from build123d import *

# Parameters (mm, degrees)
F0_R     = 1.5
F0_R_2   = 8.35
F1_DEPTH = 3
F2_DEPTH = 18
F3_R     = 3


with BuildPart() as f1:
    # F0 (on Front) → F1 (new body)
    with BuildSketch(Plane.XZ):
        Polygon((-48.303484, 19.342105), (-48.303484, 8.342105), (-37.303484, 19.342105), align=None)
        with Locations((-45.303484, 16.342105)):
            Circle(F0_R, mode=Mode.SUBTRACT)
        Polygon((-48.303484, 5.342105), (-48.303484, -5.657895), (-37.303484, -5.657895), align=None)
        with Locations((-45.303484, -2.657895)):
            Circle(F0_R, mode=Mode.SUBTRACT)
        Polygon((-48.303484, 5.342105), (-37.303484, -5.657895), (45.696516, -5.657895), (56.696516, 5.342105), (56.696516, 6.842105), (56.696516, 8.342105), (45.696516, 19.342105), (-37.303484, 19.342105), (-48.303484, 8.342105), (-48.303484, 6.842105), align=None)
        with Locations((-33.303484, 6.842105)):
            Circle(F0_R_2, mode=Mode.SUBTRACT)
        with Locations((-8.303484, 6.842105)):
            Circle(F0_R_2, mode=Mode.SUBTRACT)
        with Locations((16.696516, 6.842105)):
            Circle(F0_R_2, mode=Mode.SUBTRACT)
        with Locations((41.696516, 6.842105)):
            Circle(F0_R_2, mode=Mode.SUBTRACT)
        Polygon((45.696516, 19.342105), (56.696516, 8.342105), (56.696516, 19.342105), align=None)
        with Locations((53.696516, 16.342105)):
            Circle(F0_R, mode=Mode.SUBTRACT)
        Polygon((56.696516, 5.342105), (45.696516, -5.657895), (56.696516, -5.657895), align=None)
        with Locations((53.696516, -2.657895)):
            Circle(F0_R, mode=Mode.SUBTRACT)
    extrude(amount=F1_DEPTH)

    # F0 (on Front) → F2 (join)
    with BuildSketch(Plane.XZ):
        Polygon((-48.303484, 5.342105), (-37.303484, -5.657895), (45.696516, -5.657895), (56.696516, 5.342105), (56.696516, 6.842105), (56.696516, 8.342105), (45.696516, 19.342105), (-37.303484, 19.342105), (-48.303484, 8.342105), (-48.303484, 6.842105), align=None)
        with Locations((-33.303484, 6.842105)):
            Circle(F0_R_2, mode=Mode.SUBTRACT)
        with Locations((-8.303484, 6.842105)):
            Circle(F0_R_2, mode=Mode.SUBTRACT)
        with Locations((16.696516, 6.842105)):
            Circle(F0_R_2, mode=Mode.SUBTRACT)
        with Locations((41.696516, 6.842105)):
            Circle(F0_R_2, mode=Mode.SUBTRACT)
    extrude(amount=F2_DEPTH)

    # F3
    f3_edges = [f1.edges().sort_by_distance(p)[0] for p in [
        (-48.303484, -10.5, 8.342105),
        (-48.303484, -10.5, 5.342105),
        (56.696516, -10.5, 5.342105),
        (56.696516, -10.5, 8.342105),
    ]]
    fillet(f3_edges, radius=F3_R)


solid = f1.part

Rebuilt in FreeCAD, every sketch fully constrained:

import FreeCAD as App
import Part
import Sketcher
from FreeCAD import Vector
Q = App.Units.Quantity


def edges_at(feature, points):
    """Names of the edges that pass closest to the given points."""
    edges = feature.Shape.Edges
    near = lambda p: min(range(len(edges)), key=lambda i: edges[i].distToShape(Part.Vertex(*p))[0])
    return sorted({f"Edge{near(p) + 1}" for p in points})


def add_polygon(sketch, points):
    """Adds a closed chain of lines whose ends are joined by coincident constraints."""
    first, n = sketch.GeometryCount, len(points)
    for a, b in zip(points, points[1:] + points[:1]):
        sketch.addGeometry(Part.LineSegment(App.Vector(*a, 0), App.Vector(*b, 0)), False)
    for i in range(n):
        sketch.addConstraint(Sketcher.Constraint("Coincident", first + i, 2, first + (i + 1) % n, 1))

doc = App.newDocument("Part")
body = doc.addObject("PartDesign::Body", "Body")

# Sketch on XZ plane
sketch1 = body.newObject("Sketcher::SketchObject", "Sketch")
sketch1.AttachmentSupport = (doc.getObject("XZ_Plane"), [""])
sketch1.MapMode = "FlatFace"
add_polygon(sketch1, [(-48.3, 19.3), (-48.3, -5.7), (56.7, -5.7), (56.7, 19.3)])  # lines 0-3
sketch1.addGeometry(Part.Circle(Vector(-45.3, -2.7, 0), Vector(0, 0, 1), 1.5), False)  # 4
sketch1.addGeometry(Part.Circle(Vector(53.7, -2.7, 0), Vector(0, 0, 1), 1.5), False)  # 5
sketch1.addGeometry(Part.Circle(Vector(-33.3, 6.8, 0), Vector(0, 0, 1), 8.3), False)  # 6
sketch1.addGeometry(Part.Circle(Vector(-8.3, 6.8, 0), Vector(0, 0, 1), 8.3), False)  # 7
sketch1.addGeometry(Part.Circle(Vector(-45.3, 16.3, 0), Vector(0, 0, 1), 1.5), False)  # 8
sketch1.addGeometry(Part.Circle(Vector(16.7, 6.8, 0), Vector(0, 0, 1), 8.3), False)  # 9
sketch1.addGeometry(Part.Circle(Vector(41.7, 6.8, 0), Vector(0, 0, 1), 8.3), False)  # 10
sketch1.addGeometry(Part.Circle(Vector(53.7, 16.3, 0), Vector(0, 0, 1), 1.5), False)  # 11
sketch1.addConstraint(Sketcher.Constraint("Vertical", 0))
sketch1.addConstraint(Sketcher.Constraint("Horizontal", 1))
sketch1.addConstraint(Sketcher.Constraint("Vertical", 2))
sketch1.addConstraint(Sketcher.Constraint("Horizontal", 3))
sketch1.addConstraint(Sketcher.Constraint("Equal", 4, 5))
sketch1.addConstraint(Sketcher.Constraint("Equal", 6, 7))
sketch1.addConstraint(Sketcher.Constraint("Equal", 5, 8))
sketch1.addConstraint(Sketcher.Constraint("Equal", 7, 9))
sketch1.addConstraint(Sketcher.Constraint("Equal", 9, 10))
sketch1.addConstraint(Sketcher.Constraint("Equal", 8, 11))
sketch1.addConstraint(Sketcher.Constraint("Horizontal", 4, 3, 5, 3))
sketch1.addConstraint(Sketcher.Constraint("Horizontal", 6, 3, 7, 3))
sketch1.addConstraint(Sketcher.Constraint("Horizontal", 7, 3, 9, 3))
sketch1.addConstraint(Sketcher.Constraint("Horizontal", 9, 3, 10, 3))
sketch1.addConstraint(Sketcher.Constraint("Horizontal", 8, 3, 11, 3))
sketch1.addConstraint(Sketcher.Constraint("Vertical", 4, 3, 8, 3))
sketch1.addConstraint(Sketcher.Constraint("Vertical", 5, 3, 11, 3))
sketch1.addConstraint(Sketcher.Constraint("Diameter", 4, Q("3 mm")))
sketch1.addConstraint(Sketcher.Constraint("Diameter", 6, Q("16.7 mm")))
sketch1.addConstraint(Sketcher.Constraint("DistanceX", 1, 1, 1, 2, Q("105 mm")))
sketch1.addConstraint(Sketcher.Constraint("DistanceY", 0, 2, 0, 1, Q("25 mm")))
sketch1.addConstraint(Sketcher.Constraint("DistanceX", 4, 3, 5, 3, Q("99 mm")))
sketch1.addConstraint(Sketcher.Constraint("DistanceX", 4, 3, 6, 3, Q("12 mm")))
sketch1.addConstraint(Sketcher.Constraint("DistanceX", 6, 3, 7, 3, Q("25 mm")))
sketch1.addConstraint(Sketcher.Constraint("DistanceY", 4, 3, 8, 3, Q("19 mm")))
sketch1.addConstraint(Sketcher.Constraint("DistanceX", 7, 3, 9, 3, Q("25 mm")))
sketch1.addConstraint(Sketcher.Constraint("DistanceX", 10, 3, 5, 3, Q("12 mm")))
sketch1.addConstraint(Sketcher.Constraint("DistanceX", 0, 2, 4, 3, Q("3 mm")))
sketch1.addConstraint(Sketcher.Constraint("DistanceY", 0, 2, 4, 3, Q("3 mm")))
sketch1.addConstraint(Sketcher.Constraint("DistanceY", 4, 3, 6, 3, Q("9.5 mm")))
sketch1.addConstraint(Sketcher.Constraint("DistanceX", 4, 3, -1, 1, Q("45.303484 mm")))
sketch1.addConstraint(Sketcher.Constraint("DistanceY", 4, 3, -1, 1, Q("2.657895 mm")))
pad1 = body.newObject("PartDesign::Pad", "Pad")
pad1.Profile = sketch1
pad1.Length = 3

# Sketch on XZ plane
sketch2 = body.newObject("Sketcher::SketchObject", "Sketch001")
sketch2.AttachmentSupport = (doc.getObject("XZ_Plane"), [""])
sketch2.MapMode = "FlatFace"
add_polygon(sketch2, [(-48.3, 5.3), (-37.3, -5.7), (45.7, -5.7), (56.7, 5.3), (56.7, 8.3), (45.7, 19.3), (-37.3, 19.3), (-48.3, 8.3)])  # lines 0-7
sketch2.addGeometry(Part.Circle(Vector(-33.3, 6.8, 0), Vector(0, 0, 1), 8.3), False)  # 8
sketch2.addGeometry(Part.Circle(Vector(-8.3, 6.8, 0), Vector(0, 0, 1), 8.3), False)  # 9
sketch2.addGeometry(Part.Circle(Vector(16.7, 6.8, 0), Vector(0, 0, 1), 8.3), False)  # 10
sketch2.addGeometry(Part.Circle(Vector(41.7, 6.8, 0), Vector(0, 0, 1), 8.3), False)  # 11
sketch2.addConstraint(Sketcher.Constraint("Horizontal", 1))
sketch2.addConstraint(Sketcher.Constraint("Vertical", 3))
sketch2.addConstraint(Sketcher.Constraint("Horizontal", 5))
sketch2.addConstraint(Sketcher.Constraint("Vertical", 7))
sketch2.addConstraint(Sketcher.Constraint("Equal", 8, 9))
sketch2.addConstraint(Sketcher.Constraint("Equal", 9, 10))
sketch2.addConstraint(Sketcher.Constraint("Equal", 10, 11))
sketch2.addConstraint(Sketcher.Constraint("Perpendicular", 0, 2))
sketch2.addConstraint(Sketcher.Constraint("Perpendicular", 2, 4))
sketch2.addConstraint(Sketcher.Constraint("Perpendicular", 4, 6))
sketch2.addConstraint(Sketcher.Constraint("Horizontal", 8, 3, 9, 3))
sketch2.addConstraint(Sketcher.Constraint("Horizontal", 9, 3, 10, 3))
sketch2.addConstraint(Sketcher.Constraint("Horizontal", 10, 3, 11, 3))
sketch2.addConstraint(Sketcher.Constraint("Horizontal", 3, 2, 6, 2))
sketch2.addConstraint(Sketcher.Constraint("Horizontal", 2, 2, 7, 2))
sketch2.addConstraint(Sketcher.Constraint("Vertical", 1, 2, 4, 2))
sketch2.addConstraint(Sketcher.Constraint("Vertical", 0, 2, 5, 2))
sketch2.addConstraint(Sketcher.Constraint("Diameter", 8, Q("16.7 mm")))
sketch2.addConstraint(Sketcher.Constraint("DistanceX", 1, 1, 1, 2, Q("83 mm")))
sketch2.addConstraint(Sketcher.Constraint("DistanceY", 3, 1, 3, 2, Q("3 mm")))
sketch2.addConstraint(Sketcher.Constraint("DistanceX", 8, 3, 9, 3, Q("25 mm")))
sketch2.addConstraint(Sketcher.Constraint("DistanceX", 9, 3, 10, 3, Q("25 mm")))
sketch2.addConstraint(Sketcher.Constraint("DistanceX", 10, 3, 11, 3, Q("25 mm")))
sketch2.addConstraint(Sketcher.Constraint("DistanceX", 0, 2, 8, 3, Q("4 mm")))
sketch2.addConstraint(Sketcher.Constraint("DistanceX", 11, 3, 2, 2, Q("15 mm")))
sketch2.addConstraint(Sketcher.Constraint("DistanceY", 0, 2, 8, 3, Q("12.5 mm")))
sketch2.addConstraint(Sketcher.Constraint("DistanceX", 8, 3, -1, 1, Q("33.303484 mm")))
sketch2.addConstraint(Sketcher.Constraint("DistanceY", -1, 1, 8, 3, Q("6.842105 mm")))
pad2 = body.newObject("PartDesign::Pad", "Pad001")
pad2.Profile = sketch2
pad2.Length = 18
doc.recompute()

fillet = body.newObject("PartDesign::Fillet", "Fillet")
fillet.Base = (pad2, edges_at(pad2, [
    (-48.303, -10.5, 8.342),
    (-48.303, -10.5, 5.342),
    (56.697, -10.5, 5.342),
    (56.697, -10.5, 8.342),
]))
fillet.Radius = 3

doc.recompute()
